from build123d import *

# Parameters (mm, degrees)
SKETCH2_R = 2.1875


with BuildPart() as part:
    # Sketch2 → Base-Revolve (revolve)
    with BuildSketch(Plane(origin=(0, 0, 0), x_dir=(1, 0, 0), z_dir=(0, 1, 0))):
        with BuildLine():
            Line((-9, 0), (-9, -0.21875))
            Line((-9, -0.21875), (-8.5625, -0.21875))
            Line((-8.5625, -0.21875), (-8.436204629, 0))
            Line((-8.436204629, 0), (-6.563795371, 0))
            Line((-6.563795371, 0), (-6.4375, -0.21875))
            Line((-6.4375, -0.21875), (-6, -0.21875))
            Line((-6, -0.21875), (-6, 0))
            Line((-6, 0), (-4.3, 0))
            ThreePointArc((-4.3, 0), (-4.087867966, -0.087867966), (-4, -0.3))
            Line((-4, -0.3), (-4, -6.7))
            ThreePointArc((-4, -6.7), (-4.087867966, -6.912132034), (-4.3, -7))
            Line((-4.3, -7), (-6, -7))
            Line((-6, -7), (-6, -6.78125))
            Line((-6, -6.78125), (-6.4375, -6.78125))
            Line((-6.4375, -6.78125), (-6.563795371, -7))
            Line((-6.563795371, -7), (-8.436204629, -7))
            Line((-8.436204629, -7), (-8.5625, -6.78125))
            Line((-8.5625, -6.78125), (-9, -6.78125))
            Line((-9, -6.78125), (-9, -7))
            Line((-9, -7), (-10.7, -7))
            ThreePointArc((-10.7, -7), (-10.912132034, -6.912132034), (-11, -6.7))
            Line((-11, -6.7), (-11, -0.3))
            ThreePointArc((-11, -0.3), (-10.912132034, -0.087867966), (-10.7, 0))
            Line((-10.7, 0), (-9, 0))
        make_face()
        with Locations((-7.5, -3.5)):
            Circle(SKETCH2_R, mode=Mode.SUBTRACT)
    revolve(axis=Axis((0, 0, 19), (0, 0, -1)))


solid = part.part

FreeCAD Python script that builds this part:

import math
import FreeCAD as App
import Part
import Sketcher
from FreeCAD import Vector
Q = App.Units.Quantity

doc = App.newDocument("Part")
body = doc.addObject("PartDesign::Body", "Body")

# Sketch on XZ plane
sketch1 = doc.addObject("Sketcher::SketchObject", "Sketch")
body.addObject(sketch1)
sketch1.AttachmentSupport = (doc.XZ_Plane, [""])
sketch1.MapMode = "FlatFace"
sketch1.addGeometry(Part.LineSegment(Vector(-9, 0.22, 0), Vector(-9, 0, 0)), False)
sketch1.addGeometry(Part.LineSegment(Vector(-9, 0, 0), Vector(-10.7, 0, 0)), False)
sketch1.addGeometry(Part.ArcOfCircle(Part.Circle(Vector(-10.7, 0.3, 0), Vector(0, 0, 1), 0.3), math.radians(-180), math.radians(-90)), False)
sketch1.addGeometry(Part.LineSegment(Vector(-11, 0.3, 0), Vector(-11, 6.7, 0)), False)
sketch1.addGeometry(Part.ArcOfCircle(Part.Circle(Vector(-10.7, 6.7, 0), Vector(0, 0, 1), 0.3), math.radians(90), math.radians(180)), False)
sketch1.addGeometry(Part.LineSegment(Vector(-10.7, 7, 0), Vector(-9, 7, 0)), False)
sketch1.addGeometry(Part.LineSegment(Vector(-9, 7, 0), Vector(-9, 6.78, 0)), False)
sketch1.addGeometry(Part.LineSegment(Vector(-9, 6.78, 0), Vector(-8.56, 6.78, 0)), False)
sketch1.addGeometry(Part.LineSegment(Vector(-8.56, 6.78, 0), Vector(-8.44, 7, 0)), False)
sketch1.addGeometry(Part.LineSegment(Vector(-8.44, 7, 0), Vector(-6.56, 7, 0)), False)
sketch1.addGeometry(Part.LineSegment(Vector(-6.56, 7, 0), Vector(-6.44, 6.78, 0)), False)
sketch1.addGeometry(Part.LineSegment(Vector(-6.44, 6.78, 0), Vector(-6, 6.78, 0)), False)
sketch1.addGeometry(Part.LineSegment(Vector(-6, 6.78, 0), Vector(-6, 7, 0)), False)
sketch1.addGeometry(Part.LineSegment(Vector(-6, 7, 0), Vector(-4.3, 7, 0)), False)
sketch1.addGeometry(Part.ArcOfCircle(Part.Circle(Vector(-4.3, 6.7, 0), Vector(0, 0, 1), 0.3), math.radians(0), math.radians(90)), False)
sketch1.addGeometry(Part.LineSegment(Vector(-4, 6.7, 0), Vector(-4, 0.3, 0)), False)
sketch1.addGeometry(Part.ArcOfCircle(Part.Circle(Vector(-4.3, 0.3, 0), Vector(0, 0, 1), 0.3), math.radians(-90), math.radians(0)), False)
sketch1.addGeometry(Part.LineSegment(Vector(-4.3, 0, 0), Vector(-6, 0, 0)), False)
sketch1.addGeometry(Part.LineSegment(Vector(-6, 0, 0), Vector(-6, 0.22, 0)), False)
sketch1.addGeometry(Part.LineSegment(Vector(-6, 0.22, 0), Vector(-6.44, 0.22, 0)), False)
sketch1.addGeometry(Part.LineSegment(Vector(-6.44, 0.22, 0), Vector(-6.56, 0, 0)), False)
sketch1.addGeometry(Part.LineSegment(Vector(-6.56, 0, 0), Vector(-8.44, 0, 0)), False)
sketch1.addGeometry(Part.LineSegment(Vector(-8.44, 0, 0), Vector(-8.56, 0.22, 0)), False)
sketch1.addGeometry(Part.LineSegment(Vector(-8.56, 0.22, 0), Vector(-9, 0.22, 0)), False)
sketch1.addGeometry(Part.Circle(Vector(-7.5, 3.5, 0), Vector(0, 0, 1), 2.19), False)
sketch1.addConstraint(Sketcher.Constraint("Coincident", 0, 2, 1, 1))
sketch1.addConstraint(Sketcher.Constraint("Tangent", 1, 2, 2, 2))
sketch1.addConstraint(Sketcher.Constraint("Tangent", 2, 1, 3, 1))
sketch1.addConstraint(Sketcher.Constraint("Tangent", 3, 2, 4, 2))
sketch1.addConstraint(Sketcher.Constraint("Tangent", 4, 1, 5, 1))
sketch1.addConstraint(Sketcher.Constraint("Coincident", 5, 2, 6, 1))
sketch1.addConstraint(Sketcher.Constraint("Coincident", 6, 2, 7, 1))
sketch1.addConstraint(Sketcher.Constraint("Coincident", 7, 2, 8, 1))
sketch1.addConstraint(Sketcher.Constraint("Coincident", 8, 2, 9, 1))
sketch1.addConstraint(Sketcher.Constraint("Coincident", 9, 2, 10, 1))
sketch1.addConstraint(Sketcher.Constraint("Coincident", 10, 2, 11, 1))
sketch1.addConstraint(Sketcher.Constraint("Coincident", 11, 2, 12, 1))
sketch1.addConstraint(Sketcher.Constraint("Coincident", 12, 2, 13, 1))
sketch1.addConstraint(Sketcher.Constraint("Tangent", 13, 2, 14, 2))
sketch1.addConstraint(Sketcher.Constraint("Tangent", 14, 1, 15, 1))
sketch1.addConstraint(Sketcher.Constraint("Tangent", 15, 2, 16, 2))
sketch1.addConstraint(Sketcher.Constraint("Tangent", 16, 1, 17, 1))
sketch1.addConstraint(Sketcher.Constraint("Coincident", 17, 2, 18, 1))
sketch1.addConstraint(Sketcher.Constraint("Coincident", 18, 2, 19, 1))
sketch1.addConstraint(Sketcher.Constraint("Coincident", 19, 2, 20, 1))
sketch1.addConstraint(Sketcher.Constraint("Coincident", 20, 2, 21, 1))
sketch1.addConstraint(Sketcher.Constraint("Coincident", 21, 2, 22, 1))
sketch1.addConstraint(Sketcher.Constraint("Coincident", 22, 2, 23, 1))
sketch1.addConstraint(Sketcher.Constraint("Coincident", 23, 2, 0, 1))
sketch1.addConstraint(Sketcher.Constraint("Vertical", 0))
sketch1.addConstraint(Sketcher.Constraint("Horizontal", 1))
sketch1.addConstraint(Sketcher.Constraint("Vertical", 3))
sketch1.addConstraint(Sketcher.Constraint("Horizontal", 5))
sketch1.addConstraint(Sketcher.Constraint("Vertical", 6))
sketch1.addConstraint(Sketcher.Constraint("Horizontal", 7))
sketch1.addConstraint(Sketcher.Constraint("Horizontal", 9))
sketch1.addConstraint(Sketcher.Constraint("Horizontal", 11))
sketch1.addConstraint(Sketcher.Constraint("Vertical", 12))
sketch1.addConstraint(Sketcher.Constraint("Horizontal", 13))
sketch1.addConstraint(Sketcher.Constraint("Vertical", 15))
sketch1.addConstraint(Sketcher.Constraint("Horizontal", 17))
sketch1.addConstraint(Sketcher.Constraint("Vertical", 18))
sketch1.addConstraint(Sketcher.Constraint("Horizontal", 19))
sketch1.addConstraint(Sketcher.Constraint("Horizontal", 21))
sketch1.addConstraint(Sketcher.Constraint("Horizontal", 23))
sketch1.addConstraint(Sketcher.Constraint("Equal", 2, 4))
sketch1.addConstraint(Sketcher.Constraint("Equal", 4, 14))
sketch1.addConstraint(Sketcher.Constraint("Equal", 14, 16))
sketch1.addConstraint(Sketcher.Constraint("PointOnObject", 0, 2, -1))
sketch1.addConstraint(Sketcher.Constraint("PointOnObject", 16, 1, -1))
sketch1.addConstraint(Sketcher.Constraint("PointOnObject", 20, 2, -1))
sketch1.addConstraint(Sketcher.Constraint("Parallel", 8, 20))
sketch1.addConstraint(Sketcher.Constraint("Parallel", 10, 22))
sketch1.addConstraint(Sketcher.Constraint("Horizontal", 4, 3, 14, 3))
sketch1.addConstraint(Sketcher.Constraint("Horizontal", 5, 2, 8, 2))
sketch1.addConstraint(Sketcher.Constraint("Horizontal", 7, 2, 10, 2))
sketch1.addConstraint(Sketcher.Constraint("Horizontal", 19, 2, 22, 2))
sketch1.addConstraint(Sketcher.Constraint("Vertical", 0, 2, 5, 2))
sketch1.addConstraint(Sketcher.Constraint("Vertical", 12, 2, 17, 2))
sketch1.addConstraint(Sketcher.Constraint("Vertical", 10, 2, 19, 2))
sketch1.addConstraint(Sketcher.Constraint("Vertical", 9, 2, 20, 2))
sketch1.addConstraint(Sketcher.Constraint("Vertical", 8, 2, 21, 2))
sketch1.addConstraint(Sketcher.Constraint("Vertical", 7, 2, 22, 2))
sketch1.addConstraint(Sketcher.Constraint("Equal", 7, 11))
sketch1.addConstraint(Sketcher.Constraint("Equal", 5, 13))
sketch1.addConstraint(Sketcher.Constraint("Radius", 2, Q("0.3 mm")))
sketch1.addConstraint(Sketcher.Constraint("Angle", 8, Q("60 deg")))
sketch1.addConstraint(Sketcher.Constraint("Diameter", 24, Q("4.375 mm")))
sketch1.addConstraint(Sketcher.Constraint("DistanceX", 1, 2, 1, 1, Q("1.7 mm")))
sketch1.addConstraint(Sketcher.Constraint("DistanceY", 3, 1, 3, 2, Q("6.4 mm")))
sketch1.addConstraint(Sketcher.Constraint("DistanceX", 0, 2, -1, 1, Q("9 mm")))
sketch1.addConstraint(Sketcher.Constraint("DistanceX", 11, 2, -1, 1, Q("6 mm")))
sketch1.addConstraint(Sketcher.Constraint("DistanceX", 24, 3, -1, 1, Q("7.5 mm")))
sketch1.addConstraint(Sketcher.Constraint("DistanceY", -1, 1, 24, 3, Q("3.5 mm")))
sketch1.addConstraint(Sketcher.Constraint("DistanceX", 7, 1, 7, 2, Q("0.4375 mm")))
sketch1.addConstraint(Sketcher.Constraint("DistanceX", 9, 1, 9, 2, Q("1.872409 mm")))
revolution = doc.addObject("PartDesign::Revolution", "Revolution")
body.addObject(revolution)
revolution.Profile = sketch1
revolution.ReferenceAxis = (sketch1, ["V_Axis"])
revolution.Angle = 360

doc.recompute()
